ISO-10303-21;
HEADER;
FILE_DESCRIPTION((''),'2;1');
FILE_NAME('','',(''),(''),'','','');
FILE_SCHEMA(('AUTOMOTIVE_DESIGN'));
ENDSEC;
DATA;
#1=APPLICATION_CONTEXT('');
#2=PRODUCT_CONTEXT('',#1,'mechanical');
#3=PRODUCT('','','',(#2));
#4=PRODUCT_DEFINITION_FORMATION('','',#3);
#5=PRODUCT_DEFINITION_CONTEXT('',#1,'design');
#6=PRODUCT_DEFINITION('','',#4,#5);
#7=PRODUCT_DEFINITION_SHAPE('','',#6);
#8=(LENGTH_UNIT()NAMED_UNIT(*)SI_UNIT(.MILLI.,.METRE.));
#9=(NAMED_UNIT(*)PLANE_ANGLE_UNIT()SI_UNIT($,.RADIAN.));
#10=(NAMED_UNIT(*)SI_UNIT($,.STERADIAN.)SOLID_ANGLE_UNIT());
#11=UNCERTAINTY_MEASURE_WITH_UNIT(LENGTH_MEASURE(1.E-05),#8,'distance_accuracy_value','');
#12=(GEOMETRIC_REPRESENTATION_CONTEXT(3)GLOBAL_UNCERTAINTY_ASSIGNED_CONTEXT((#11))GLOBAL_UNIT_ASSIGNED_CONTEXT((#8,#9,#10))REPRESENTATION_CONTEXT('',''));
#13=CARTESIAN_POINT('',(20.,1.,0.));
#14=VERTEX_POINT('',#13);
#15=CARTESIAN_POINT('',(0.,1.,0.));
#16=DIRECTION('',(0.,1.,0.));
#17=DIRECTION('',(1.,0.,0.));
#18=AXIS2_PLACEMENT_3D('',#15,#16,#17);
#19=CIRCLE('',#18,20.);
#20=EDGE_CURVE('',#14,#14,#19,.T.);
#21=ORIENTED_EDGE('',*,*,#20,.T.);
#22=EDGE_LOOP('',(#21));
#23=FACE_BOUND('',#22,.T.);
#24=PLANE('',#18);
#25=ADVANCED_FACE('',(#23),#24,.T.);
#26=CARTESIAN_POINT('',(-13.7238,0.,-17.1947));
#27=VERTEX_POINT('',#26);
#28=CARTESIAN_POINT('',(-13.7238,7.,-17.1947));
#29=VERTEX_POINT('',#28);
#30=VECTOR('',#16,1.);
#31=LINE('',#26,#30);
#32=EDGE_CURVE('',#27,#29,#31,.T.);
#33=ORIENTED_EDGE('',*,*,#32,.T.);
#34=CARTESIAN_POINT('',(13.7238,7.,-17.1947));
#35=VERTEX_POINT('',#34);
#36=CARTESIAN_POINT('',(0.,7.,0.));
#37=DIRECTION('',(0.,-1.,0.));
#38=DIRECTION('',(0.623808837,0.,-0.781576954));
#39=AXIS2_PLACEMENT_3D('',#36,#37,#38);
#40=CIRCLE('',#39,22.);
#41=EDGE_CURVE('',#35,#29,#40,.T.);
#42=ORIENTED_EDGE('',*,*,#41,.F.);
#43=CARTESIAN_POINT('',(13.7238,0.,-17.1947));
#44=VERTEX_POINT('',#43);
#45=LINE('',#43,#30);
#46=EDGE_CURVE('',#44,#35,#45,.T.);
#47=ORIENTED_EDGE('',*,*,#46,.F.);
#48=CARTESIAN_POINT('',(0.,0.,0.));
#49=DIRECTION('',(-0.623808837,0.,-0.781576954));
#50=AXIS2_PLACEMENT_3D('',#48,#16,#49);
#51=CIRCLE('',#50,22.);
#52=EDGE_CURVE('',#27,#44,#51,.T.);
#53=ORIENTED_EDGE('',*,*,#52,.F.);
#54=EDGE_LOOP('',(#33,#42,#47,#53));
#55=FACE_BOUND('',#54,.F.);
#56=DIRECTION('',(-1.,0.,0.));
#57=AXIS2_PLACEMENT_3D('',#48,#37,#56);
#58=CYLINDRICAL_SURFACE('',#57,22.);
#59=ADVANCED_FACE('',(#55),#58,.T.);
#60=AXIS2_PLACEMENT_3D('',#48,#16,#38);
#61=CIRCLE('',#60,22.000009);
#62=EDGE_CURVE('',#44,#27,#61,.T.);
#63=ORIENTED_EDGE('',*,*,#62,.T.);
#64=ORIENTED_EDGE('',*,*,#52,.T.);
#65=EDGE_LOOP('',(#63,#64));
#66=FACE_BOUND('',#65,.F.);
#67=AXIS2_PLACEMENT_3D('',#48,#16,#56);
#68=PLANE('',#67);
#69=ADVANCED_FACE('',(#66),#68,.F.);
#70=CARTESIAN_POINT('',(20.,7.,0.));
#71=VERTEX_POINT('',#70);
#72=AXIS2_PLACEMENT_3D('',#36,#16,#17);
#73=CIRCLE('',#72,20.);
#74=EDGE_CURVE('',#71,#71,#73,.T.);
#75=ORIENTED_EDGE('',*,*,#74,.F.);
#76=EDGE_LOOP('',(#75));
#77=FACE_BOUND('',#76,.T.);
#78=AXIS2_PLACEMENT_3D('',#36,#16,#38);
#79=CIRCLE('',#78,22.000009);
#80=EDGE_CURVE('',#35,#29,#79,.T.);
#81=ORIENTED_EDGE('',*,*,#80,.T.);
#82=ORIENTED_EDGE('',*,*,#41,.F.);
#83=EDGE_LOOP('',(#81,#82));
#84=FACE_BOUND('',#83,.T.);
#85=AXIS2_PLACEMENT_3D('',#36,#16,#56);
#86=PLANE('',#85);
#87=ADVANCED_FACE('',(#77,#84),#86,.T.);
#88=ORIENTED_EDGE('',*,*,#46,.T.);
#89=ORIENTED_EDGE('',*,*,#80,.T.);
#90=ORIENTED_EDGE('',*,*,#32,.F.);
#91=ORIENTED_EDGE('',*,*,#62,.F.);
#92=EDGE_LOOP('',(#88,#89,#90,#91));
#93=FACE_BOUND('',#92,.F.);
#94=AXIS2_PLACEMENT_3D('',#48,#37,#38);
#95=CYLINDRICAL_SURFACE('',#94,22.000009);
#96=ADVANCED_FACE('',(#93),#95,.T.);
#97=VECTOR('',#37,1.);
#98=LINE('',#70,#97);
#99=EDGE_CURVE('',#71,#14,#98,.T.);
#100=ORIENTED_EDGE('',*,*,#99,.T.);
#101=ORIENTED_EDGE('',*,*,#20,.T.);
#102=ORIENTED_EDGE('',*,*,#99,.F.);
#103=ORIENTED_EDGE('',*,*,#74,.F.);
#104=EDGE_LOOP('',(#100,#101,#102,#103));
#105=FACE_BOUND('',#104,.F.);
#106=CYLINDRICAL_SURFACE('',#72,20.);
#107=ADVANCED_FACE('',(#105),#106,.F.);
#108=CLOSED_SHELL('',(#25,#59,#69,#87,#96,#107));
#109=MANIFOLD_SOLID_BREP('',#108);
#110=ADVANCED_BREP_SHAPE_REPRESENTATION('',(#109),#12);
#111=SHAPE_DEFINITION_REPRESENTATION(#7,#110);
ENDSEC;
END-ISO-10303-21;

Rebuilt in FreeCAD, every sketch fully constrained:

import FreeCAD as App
import Part
import Sketcher
Q = App.Units.Quantity

doc = App.newDocument("Part")
body = doc.addObject("PartDesign::Body", "Body")

sketch1 = body.newObject("Sketcher::SketchObject", "Sketch")
sketch1.AttachmentSupport = (doc.getObject("XZ_Plane"), [""])
sketch1.MapMode = "FlatFace"
sketch1.addGeometry(Part.Circle(App.Vector(0, 0, 0), App.Vector(0, 0, 1), 22), False)
sketch1.addConstraint([
    Sketcher.Constraint("Coincident", 0, 3, -1, 1),
    Sketcher.Constraint("Diameter", 0, Q("44 mm")),
])
pad1 = body.newObject("PartDesign::Pad", "Pad")
pad1.Profile = sketch1
pad1.Length = 7
pad1.Reversed = True

sketch2 = body.newObject("Sketcher::SketchObject", "Sketch001")
sketch2.AttachmentSupport = (doc.getObject("XZ_Plane"), [""])
sketch2.MapMode = "FlatFace"
sketch2.AttachmentOffset = App.Placement(App.Vector(0, 0, -7), App.Rotation())
sketch2.addGeometry(Part.Circle(App.Vector(0, 0, 0), App.Vector(0, 0, 1), 20), False)
sketch2.addConstraint([
    Sketcher.Constraint("Coincident", 0, 3, -1, 1),
    Sketcher.Constraint("Diameter", 0, Q("40 mm")),
])
pocket1 = body.newObject("PartDesign::Pocket", "Pocket")
pocket1.Profile = sketch2
pocket1.Length = 6
pocket1.Reversed = True

doc.recompute()
